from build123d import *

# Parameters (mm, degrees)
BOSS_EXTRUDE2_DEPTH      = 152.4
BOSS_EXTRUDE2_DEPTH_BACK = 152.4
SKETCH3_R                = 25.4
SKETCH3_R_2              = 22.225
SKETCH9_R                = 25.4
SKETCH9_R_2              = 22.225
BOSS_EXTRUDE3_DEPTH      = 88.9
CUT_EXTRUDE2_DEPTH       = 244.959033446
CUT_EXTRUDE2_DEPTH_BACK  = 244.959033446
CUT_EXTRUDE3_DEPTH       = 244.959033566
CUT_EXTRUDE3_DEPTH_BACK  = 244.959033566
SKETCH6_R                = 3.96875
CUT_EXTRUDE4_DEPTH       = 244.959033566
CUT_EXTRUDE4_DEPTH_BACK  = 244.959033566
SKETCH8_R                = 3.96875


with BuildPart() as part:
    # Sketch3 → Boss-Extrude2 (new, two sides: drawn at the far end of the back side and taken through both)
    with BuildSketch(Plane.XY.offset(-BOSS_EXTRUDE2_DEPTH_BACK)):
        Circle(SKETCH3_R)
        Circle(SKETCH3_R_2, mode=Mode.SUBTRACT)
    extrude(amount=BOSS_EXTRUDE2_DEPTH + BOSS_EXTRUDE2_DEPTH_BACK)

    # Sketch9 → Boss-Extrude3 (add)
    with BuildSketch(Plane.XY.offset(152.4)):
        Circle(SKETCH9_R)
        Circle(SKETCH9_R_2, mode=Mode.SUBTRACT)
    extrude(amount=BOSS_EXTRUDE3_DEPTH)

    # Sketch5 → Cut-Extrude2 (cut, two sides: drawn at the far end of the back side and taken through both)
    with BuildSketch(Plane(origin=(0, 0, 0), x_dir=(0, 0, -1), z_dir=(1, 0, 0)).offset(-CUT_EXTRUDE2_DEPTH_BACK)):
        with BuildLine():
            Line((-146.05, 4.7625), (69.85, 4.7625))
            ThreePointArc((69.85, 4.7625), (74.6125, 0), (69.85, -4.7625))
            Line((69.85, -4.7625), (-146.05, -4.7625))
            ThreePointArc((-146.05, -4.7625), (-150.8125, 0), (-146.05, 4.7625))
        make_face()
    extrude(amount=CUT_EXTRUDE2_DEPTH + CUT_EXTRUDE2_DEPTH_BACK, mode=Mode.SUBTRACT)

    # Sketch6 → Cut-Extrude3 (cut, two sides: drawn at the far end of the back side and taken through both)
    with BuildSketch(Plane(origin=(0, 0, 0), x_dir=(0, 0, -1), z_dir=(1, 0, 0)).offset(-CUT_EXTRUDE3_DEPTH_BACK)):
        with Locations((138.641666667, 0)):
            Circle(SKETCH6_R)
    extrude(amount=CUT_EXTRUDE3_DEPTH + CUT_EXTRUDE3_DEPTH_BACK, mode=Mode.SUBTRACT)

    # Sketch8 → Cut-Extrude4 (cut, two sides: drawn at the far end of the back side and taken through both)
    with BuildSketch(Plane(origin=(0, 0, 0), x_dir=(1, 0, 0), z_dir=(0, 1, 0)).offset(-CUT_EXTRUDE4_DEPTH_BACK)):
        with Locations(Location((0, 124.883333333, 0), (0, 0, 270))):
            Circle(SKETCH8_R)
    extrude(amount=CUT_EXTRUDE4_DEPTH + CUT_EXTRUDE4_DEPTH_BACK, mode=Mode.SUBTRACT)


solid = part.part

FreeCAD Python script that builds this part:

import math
import FreeCAD as App
import Part
import Sketcher
from FreeCAD import Vector
Q = App.Units.Quantity

doc = App.newDocument("Part")
body = doc.addObject("PartDesign::Body", "Body")

# Sketch on XY plane
sketch1 = doc.addObject("Sketcher::SketchObject", "Sketch")
body.addObject(sketch1)
sketch1.AttachmentSupport = (doc.XY_Plane, [""])
sketch1.MapMode = "FlatFace"
sketch1.addGeometry(Part.Circle(Vector(0, 0, 0), Vector(0, 0, 1), 25.4), False)
sketch1.addGeometry(Part.Circle(Vector(0, 0, 0), Vector(0, 0, 1), 22.225), False)
sketch1.addConstraint(Sketcher.Constraint("Coincident", 0, 3, -1, 1))
sketch1.addConstraint(Sketcher.Constraint("Coincident", 1, 3, -1, 1))
sketch1.addConstraint(Sketcher.Constraint("Diameter", 0, Q("2 in")))
sketch1.addConstraint(Sketcher.Constraint("Diameter", 1, Q("1.75 in")))
pad1 = doc.addObject("PartDesign::Pad", "Pad")
body.addObject(pad1)
pad1.Profile = sketch1
pad1.Type = "TwoLengths"
pad1.Length = Q("6 in")
pad1.Length2 = Q("6 in")

# Sketch on XY plane
sketch2 = doc.addObject("Sketcher::SketchObject", "Sketch001")
body.addObject(sketch2)
sketch2.AttachmentSupport = (doc.XY_Plane, [""])
sketch2.MapMode = "FlatFace"
sketch2.AttachmentOffset = App.Placement(Vector(0, 0, 6 * 25.4), App.Rotation())
sketch2.addGeometry(Part.Circle(Vector(0, 0, 0), Vector(0, 0, 1), 25.4), False)
sketch2.addGeometry(Part.Circle(Vector(0, 0, 0), Vector(0, 0, 1), 22.225), False)
sketch2.addConstraint(Sketcher.Constraint("Coincident", 0, 3, -1, 1))
sketch2.addConstraint(Sketcher.Constraint("Coincident", 1, 3, -1, 1))
sketch2.addConstraint(Sketcher.Constraint("Diameter", 0, Q("2 in")))
sketch2.addConstraint(Sketcher.Constraint("Diameter", 1, Q("1.75 in")))
pad2 = doc.addObject("PartDesign::Pad", "Pad001")
body.addObject(pad2)
pad2.Profile = sketch2
pad2.Length = Q("3.5 in")

# Sketch on YZ plane
sketch3 = doc.addObject("Sketcher::SketchObject", "Sketch002")
body.addObject(sketch3)
sketch3.AttachmentSupport = (doc.YZ_Plane, [""])
sketch3.MapMode = "FlatFace"
sketch3.addGeometry(Part.LineSegment(Vector(4.7625, -69.85, 0), Vector(4.7625, 146.05, 0)), False)
sketch3.addGeometry(Part.ArcOfCircle(Part.Circle(Vector(0, 146.05, 0), Vector(0, 0, 1), 4.7625), math.radians(0), math.radians(180)), False)
sketch3.addGeometry(Part.LineSegment(Vector(-4.7625, 146.05, 0), Vector(-4.7625, -69.85, 0)), False)
sketch3.addGeometry(Part.ArcOfCircle(Part.Circle(Vector(0, -69.85, 0), Vector(0, 0, 1), 4.7625), math.radians(180), math.radians(360)), False)
sketch3.addConstraint(Sketcher.Constraint("Tangent", 0, 2, 1, 1))
sketch3.addConstraint(Sketcher.Constraint("Tangent", 1, 2, 2, 1))
sketch3.addConstraint(Sketcher.Constraint("Tangent", 2, 2, 3, 1))
sketch3.addConstraint(Sketcher.Constraint("Tangent", 3, 2, 0, 1))
sketch3.addConstraint(Sketcher.Constraint("Vertical", 0))
sketch3.addConstraint(Sketcher.Constraint("Vertical", 2))
sketch3.addConstraint(Sketcher.Constraint("PointOnObject", 1, 3, -2))
sketch3.addConstraint(Sketcher.Constraint("DistanceY", 0, 1, 0, 2, Q("8.5 in")))
sketch3.addConstraint(Sketcher.Constraint("Radius", 1, Q("0.1875 in")))
sketch3.addConstraint(Sketcher.Constraint("DistanceY", -1, 1, 1, 3, Q("5.75 in")))
pocket1 = doc.addObject("PartDesign::Pocket", "Pocket")
body.addObject(pocket1)
pocket1.Profile = sketch3
pocket1.Type = "ThroughAll"
pocket1.Midplane = True

# Sketch on YZ plane
sketch4 = doc.addObject("Sketcher::SketchObject", "Sketch003")
body.addObject(sketch4)
sketch4.AttachmentSupport = (doc.YZ_Plane, [""])
sketch4.MapMode = "FlatFace"
sketch4.addGeometry(Part.Circle(Vector(0, -138.641667, 0), Vector(0, 0, 1), 3.96875), False)
sketch4.addConstraint(Sketcher.Constraint("PointOnObject", 0, 3, -2))
sketch4.addConstraint(Sketcher.Constraint("Diameter", 0, Q("0.3125 in")))
sketch4.addConstraint(Sketcher.Constraint("DistanceY", 0, 3, -1, 1, Q("138.641667 mm")))
pocket2 = doc.addObject("PartDesign::Pocket", "Pocket001")
body.addObject(pocket2)
pocket2.Profile = sketch4
pocket2.Type = "ThroughAll"
pocket2.Midplane = True

# Sketch on XZ plane
sketch5 = doc.addObject("Sketcher::SketchObject", "Sketch004")
body.addObject(sketch5)
sketch5.AttachmentSupport = (doc.XZ_Plane, [""])
sketch5.MapMode = "FlatFace"
sketch5.addGeometry(Part.Circle(Vector(0, -124.883333, 0), Vector(0, 0, 1), 3.96875), False)
sketch5.addConstraint(Sketcher.Constraint("PointOnObject", 0, 3, -2))
sketch5.addConstraint(Sketcher.Constraint("Diameter", 0, Q("0.3125 in")))
sketch5.addConstraint(Sketcher.Constraint("DistanceY", 0, 3, -1, 1, Q("124.883333 mm")))
pocket3 = doc.addObject("PartDesign::Pocket", "Pocket002")
body.addObject(pocket3)
pocket3.Profile = sketch5
pocket3.Type = "ThroughAll"
pocket3.Midplane = True

doc.recompute()
